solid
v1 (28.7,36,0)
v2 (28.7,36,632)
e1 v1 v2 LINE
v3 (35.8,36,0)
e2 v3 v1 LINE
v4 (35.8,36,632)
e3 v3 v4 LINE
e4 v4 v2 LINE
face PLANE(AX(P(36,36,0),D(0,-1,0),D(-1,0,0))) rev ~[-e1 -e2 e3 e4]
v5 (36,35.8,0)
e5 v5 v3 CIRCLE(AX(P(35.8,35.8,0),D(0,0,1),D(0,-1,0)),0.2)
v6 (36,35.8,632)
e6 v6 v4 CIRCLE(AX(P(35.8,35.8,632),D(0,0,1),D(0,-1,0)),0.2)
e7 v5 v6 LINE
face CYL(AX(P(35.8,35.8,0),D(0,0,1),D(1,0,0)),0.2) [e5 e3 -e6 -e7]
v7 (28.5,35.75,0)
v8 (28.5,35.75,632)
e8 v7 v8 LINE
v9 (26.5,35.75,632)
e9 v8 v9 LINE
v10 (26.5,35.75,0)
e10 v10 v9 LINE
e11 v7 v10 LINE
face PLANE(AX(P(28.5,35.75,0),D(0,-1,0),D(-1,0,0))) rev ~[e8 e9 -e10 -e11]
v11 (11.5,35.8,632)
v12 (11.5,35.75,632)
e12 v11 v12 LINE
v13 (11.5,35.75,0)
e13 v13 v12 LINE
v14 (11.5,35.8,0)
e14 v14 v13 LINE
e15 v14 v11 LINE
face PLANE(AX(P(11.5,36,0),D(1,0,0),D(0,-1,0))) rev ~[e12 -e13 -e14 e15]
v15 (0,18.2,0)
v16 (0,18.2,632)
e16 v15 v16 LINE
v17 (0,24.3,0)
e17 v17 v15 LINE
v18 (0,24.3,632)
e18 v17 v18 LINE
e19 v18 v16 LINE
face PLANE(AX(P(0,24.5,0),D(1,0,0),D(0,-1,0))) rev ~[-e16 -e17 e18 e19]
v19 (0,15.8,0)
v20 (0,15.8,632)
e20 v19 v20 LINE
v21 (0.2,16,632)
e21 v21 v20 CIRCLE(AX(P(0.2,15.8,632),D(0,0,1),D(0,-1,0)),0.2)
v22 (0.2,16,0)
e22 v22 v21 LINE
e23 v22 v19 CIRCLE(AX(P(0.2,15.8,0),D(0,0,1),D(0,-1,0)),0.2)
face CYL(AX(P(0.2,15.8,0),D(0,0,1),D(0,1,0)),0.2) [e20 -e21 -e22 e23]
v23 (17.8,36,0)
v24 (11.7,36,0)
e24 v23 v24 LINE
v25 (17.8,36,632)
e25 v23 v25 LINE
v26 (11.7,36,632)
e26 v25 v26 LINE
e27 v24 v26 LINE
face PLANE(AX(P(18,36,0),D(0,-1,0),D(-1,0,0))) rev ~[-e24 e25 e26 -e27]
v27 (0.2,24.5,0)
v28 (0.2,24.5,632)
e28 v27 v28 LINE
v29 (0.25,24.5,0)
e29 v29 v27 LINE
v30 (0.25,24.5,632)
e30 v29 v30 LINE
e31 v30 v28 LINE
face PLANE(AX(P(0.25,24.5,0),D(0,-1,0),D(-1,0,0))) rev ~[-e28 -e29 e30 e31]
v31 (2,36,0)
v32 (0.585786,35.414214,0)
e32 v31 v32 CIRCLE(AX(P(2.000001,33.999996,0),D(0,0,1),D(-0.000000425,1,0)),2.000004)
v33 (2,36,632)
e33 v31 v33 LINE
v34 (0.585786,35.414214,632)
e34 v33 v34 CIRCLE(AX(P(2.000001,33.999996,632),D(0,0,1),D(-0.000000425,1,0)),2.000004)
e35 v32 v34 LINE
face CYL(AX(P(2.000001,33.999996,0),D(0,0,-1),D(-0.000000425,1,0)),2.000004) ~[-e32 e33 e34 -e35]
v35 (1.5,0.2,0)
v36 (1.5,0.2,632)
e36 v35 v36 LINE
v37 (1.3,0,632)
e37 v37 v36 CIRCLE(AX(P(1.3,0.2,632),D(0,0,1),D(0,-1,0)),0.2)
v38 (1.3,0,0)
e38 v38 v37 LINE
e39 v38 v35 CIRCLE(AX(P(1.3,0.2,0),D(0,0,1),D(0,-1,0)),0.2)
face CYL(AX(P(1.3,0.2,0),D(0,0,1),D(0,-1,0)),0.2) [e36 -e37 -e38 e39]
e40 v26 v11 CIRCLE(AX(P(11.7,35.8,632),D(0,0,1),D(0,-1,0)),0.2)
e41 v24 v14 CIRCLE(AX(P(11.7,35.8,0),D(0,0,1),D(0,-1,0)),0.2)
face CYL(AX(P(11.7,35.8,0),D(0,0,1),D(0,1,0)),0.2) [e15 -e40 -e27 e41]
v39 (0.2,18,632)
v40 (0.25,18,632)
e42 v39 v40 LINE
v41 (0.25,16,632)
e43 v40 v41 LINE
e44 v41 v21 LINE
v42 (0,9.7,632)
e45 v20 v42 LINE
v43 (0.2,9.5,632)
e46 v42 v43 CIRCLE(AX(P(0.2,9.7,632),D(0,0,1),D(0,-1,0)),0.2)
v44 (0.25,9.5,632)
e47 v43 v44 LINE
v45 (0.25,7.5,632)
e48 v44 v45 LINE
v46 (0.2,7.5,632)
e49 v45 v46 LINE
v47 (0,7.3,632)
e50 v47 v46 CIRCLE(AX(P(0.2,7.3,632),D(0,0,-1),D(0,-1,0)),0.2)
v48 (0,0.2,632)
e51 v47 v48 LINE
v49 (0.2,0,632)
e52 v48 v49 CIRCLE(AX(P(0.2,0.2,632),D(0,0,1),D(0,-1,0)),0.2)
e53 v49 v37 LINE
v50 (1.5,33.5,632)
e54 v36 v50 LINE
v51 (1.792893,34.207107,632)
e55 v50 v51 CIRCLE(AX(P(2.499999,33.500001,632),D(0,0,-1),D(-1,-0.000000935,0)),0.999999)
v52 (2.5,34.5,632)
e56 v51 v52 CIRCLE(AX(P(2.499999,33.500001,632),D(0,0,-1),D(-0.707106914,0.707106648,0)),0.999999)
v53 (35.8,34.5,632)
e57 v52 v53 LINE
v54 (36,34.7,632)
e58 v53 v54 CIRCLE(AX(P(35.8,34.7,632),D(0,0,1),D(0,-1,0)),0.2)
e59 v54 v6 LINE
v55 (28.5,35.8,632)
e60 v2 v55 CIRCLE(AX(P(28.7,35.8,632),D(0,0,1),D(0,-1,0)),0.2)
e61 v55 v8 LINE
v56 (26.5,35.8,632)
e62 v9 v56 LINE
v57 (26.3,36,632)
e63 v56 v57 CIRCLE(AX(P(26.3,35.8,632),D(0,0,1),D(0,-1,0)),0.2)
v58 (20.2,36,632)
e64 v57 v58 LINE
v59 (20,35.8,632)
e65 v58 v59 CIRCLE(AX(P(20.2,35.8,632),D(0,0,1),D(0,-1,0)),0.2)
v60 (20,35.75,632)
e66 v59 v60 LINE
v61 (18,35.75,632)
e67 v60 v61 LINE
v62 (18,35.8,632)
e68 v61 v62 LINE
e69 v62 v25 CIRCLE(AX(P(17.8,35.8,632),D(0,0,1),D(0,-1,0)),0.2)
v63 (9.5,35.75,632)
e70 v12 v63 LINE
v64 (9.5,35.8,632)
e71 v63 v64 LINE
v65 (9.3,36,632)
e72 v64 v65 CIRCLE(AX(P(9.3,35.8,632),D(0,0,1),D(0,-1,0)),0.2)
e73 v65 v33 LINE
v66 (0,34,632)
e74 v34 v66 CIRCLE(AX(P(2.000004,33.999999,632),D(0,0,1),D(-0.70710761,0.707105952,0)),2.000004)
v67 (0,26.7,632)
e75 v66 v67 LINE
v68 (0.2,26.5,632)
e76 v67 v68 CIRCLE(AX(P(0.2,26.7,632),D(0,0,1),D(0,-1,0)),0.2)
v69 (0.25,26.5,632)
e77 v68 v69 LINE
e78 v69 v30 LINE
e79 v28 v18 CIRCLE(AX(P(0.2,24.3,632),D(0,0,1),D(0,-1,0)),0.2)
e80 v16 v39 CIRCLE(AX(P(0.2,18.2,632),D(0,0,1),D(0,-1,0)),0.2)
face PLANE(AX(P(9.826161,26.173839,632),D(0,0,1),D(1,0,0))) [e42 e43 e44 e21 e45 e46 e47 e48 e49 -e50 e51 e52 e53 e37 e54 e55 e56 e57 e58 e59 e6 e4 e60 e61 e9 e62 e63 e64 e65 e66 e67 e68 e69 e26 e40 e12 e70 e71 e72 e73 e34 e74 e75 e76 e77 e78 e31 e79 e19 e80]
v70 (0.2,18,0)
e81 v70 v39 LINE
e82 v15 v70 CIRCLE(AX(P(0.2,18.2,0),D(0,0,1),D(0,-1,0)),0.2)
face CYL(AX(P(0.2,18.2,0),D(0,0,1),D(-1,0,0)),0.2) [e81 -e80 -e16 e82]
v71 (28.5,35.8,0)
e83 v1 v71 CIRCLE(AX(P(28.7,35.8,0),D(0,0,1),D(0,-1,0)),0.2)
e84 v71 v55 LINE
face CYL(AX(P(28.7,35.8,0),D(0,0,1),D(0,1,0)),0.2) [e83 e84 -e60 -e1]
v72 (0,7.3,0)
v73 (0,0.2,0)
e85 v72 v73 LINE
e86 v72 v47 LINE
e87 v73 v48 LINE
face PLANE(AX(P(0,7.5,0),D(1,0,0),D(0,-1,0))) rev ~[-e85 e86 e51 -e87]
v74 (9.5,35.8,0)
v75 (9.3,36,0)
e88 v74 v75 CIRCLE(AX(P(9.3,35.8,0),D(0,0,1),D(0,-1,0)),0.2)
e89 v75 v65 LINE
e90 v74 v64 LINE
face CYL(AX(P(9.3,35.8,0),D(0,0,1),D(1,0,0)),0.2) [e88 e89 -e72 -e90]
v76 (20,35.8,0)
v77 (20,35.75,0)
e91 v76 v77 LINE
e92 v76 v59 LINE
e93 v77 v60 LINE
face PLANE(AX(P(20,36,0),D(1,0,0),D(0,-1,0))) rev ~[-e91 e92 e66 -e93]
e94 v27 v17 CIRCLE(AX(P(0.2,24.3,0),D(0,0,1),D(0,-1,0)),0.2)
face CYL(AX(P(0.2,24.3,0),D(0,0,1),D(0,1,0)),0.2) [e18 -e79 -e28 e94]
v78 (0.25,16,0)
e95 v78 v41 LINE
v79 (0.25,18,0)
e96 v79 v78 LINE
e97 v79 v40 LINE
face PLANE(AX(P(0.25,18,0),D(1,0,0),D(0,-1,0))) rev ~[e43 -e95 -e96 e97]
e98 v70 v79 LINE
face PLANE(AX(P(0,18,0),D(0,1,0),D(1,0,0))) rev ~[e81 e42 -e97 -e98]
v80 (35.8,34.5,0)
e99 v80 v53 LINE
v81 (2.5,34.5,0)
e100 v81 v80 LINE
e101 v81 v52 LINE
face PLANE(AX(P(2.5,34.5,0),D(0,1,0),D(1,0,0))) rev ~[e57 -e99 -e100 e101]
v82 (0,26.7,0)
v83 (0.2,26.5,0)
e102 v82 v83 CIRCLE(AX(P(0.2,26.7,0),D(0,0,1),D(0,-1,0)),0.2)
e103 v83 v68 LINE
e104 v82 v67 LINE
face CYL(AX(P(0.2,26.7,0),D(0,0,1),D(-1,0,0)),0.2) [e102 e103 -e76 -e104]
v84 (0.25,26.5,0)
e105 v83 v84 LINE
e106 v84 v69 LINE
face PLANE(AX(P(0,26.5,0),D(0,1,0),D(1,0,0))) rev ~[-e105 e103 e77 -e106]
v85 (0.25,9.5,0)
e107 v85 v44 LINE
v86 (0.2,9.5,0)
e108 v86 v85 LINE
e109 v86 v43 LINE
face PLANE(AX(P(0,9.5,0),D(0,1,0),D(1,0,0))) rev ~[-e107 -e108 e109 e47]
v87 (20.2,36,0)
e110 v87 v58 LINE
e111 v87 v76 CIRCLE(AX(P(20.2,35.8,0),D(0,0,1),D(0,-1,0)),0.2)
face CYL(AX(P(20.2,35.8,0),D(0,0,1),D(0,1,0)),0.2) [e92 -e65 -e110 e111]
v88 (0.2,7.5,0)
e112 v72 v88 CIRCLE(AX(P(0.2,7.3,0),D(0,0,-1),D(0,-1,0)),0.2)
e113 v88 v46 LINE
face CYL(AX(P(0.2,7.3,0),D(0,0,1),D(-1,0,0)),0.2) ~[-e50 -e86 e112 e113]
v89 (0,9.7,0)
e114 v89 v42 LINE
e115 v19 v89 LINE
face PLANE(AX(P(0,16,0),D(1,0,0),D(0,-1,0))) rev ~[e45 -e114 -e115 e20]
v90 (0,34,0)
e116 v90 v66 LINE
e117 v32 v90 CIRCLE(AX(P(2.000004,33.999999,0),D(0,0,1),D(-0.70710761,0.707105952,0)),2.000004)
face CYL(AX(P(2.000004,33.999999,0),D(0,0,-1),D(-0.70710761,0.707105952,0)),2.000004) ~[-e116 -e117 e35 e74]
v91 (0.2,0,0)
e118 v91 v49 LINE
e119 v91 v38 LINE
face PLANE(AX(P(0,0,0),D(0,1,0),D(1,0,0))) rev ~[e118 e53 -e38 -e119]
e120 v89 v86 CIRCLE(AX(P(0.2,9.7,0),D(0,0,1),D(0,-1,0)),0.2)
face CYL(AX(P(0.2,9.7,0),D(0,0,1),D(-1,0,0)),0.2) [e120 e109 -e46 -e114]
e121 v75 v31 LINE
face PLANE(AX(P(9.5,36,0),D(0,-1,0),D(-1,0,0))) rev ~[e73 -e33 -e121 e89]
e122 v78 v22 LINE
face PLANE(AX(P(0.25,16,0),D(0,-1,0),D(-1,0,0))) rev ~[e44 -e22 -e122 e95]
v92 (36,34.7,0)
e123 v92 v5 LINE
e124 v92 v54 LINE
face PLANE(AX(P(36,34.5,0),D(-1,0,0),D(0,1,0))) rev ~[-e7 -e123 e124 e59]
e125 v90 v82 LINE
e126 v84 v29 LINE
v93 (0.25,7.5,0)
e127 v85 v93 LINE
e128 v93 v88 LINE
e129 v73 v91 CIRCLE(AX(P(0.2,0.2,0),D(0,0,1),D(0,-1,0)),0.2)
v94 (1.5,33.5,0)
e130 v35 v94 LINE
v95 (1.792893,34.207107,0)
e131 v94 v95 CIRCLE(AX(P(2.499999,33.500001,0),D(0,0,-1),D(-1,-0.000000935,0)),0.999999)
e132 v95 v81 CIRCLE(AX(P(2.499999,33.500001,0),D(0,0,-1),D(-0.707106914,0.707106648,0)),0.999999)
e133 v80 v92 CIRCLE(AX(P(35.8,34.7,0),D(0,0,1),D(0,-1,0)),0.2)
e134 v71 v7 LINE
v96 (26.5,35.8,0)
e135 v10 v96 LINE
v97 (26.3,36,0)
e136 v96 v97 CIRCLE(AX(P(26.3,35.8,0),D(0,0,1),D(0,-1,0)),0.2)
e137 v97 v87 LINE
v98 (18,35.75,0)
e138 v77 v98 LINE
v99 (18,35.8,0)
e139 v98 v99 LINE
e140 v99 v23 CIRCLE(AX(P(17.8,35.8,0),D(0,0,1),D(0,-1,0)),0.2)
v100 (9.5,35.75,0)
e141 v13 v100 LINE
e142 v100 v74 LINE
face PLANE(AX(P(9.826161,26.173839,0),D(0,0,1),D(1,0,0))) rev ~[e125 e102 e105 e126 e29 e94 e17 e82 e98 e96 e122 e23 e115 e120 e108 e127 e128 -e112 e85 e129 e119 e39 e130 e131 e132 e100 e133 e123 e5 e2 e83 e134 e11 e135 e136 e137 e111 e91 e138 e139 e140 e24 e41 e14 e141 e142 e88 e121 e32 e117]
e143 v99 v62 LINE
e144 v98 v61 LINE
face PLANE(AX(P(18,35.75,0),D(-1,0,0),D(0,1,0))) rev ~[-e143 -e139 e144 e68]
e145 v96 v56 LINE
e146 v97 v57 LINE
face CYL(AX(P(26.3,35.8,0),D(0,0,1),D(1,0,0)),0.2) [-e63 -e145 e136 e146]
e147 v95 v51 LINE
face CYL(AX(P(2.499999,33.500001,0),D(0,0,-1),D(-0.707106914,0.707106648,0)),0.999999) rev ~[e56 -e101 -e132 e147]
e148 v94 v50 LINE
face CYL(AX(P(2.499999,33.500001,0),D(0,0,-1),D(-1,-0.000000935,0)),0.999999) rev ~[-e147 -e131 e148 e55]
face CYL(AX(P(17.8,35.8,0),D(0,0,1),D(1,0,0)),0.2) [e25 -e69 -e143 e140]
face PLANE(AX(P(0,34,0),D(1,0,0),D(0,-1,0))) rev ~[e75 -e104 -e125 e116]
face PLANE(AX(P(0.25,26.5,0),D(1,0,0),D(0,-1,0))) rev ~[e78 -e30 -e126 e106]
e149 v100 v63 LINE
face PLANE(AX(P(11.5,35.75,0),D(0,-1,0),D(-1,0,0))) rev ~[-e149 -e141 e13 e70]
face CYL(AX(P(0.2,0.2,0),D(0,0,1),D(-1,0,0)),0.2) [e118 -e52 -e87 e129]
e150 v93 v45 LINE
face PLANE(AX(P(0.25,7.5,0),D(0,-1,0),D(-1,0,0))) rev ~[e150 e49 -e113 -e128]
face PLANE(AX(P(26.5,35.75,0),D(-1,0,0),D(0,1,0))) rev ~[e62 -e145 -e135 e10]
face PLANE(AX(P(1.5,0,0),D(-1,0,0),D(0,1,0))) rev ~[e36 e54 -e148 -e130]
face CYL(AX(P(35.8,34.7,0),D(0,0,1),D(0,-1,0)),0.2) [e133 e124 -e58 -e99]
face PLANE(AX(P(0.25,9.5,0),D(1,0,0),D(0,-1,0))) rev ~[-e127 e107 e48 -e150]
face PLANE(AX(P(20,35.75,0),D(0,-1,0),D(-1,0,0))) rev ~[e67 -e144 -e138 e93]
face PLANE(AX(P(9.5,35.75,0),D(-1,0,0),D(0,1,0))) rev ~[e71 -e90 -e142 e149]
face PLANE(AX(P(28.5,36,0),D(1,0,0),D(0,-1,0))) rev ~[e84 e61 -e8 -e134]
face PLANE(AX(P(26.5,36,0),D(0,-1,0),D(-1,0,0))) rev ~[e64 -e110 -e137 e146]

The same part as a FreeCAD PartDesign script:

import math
import FreeCAD as App
import Part
import Sketcher

V = App.Vector


def edges_at(feature, points):
    """Names of the edges that pass closest to the given points."""
    edges = feature.Shape.Edges
    near = lambda p: min(range(len(edges)), key=lambda i: edges[i].distToShape(Part.Vertex(*p))[0])
    return sorted({f"Edge{near(p) + 1}" for p in points})

doc = App.newDocument("Part")
body = doc.addObject("PartDesign::Body", "Body")

sketch1 = body.newObject("Sketcher::SketchObject", "Sketch")
sketch1.AttachmentSupport = (doc.getObject("XY_Plane"), [""])
sketch1.MapMode = "FlatFace"
sketch1.addGeometry([
    Part.LineSegment(V(0, 7.5, 0), V(0, 0, 0)),
    Part.LineSegment(V(0, 0, 0), V(1.5, 0, 0)),
    Part.LineSegment(V(1.5, 0, 0), V(1.5, 33.5, 0)),
    Part.ArcOfCircle(Part.Circle(V(2.5, 33.5, 0), V(0, 0, 1), 1), math.radians(135), math.radians(180)),
    Part.ArcOfCircle(Part.Circle(V(2.5, 33.5, 0), V(0, 0, 1), 1), math.radians(90), math.radians(135)),
    Part.LineSegment(V(2.5, 34.5, 0), V(36, 34.5, 0)),
    Part.LineSegment(V(36, 34.5, 0), V(36, 36, 0)),
    Part.LineSegment(V(36, 36, 0), V(28.5, 36, 0)),
    Part.LineSegment(V(28.5, 36, 0), V(28.5, 35.75, 0)),
    Part.LineSegment(V(28.5, 35.75, 0), V(26.5, 35.75, 0)),
    Part.LineSegment(V(26.5, 35.75, 0), V(26.5, 36, 0)),
    Part.LineSegment(V(26.5, 36, 0), V(20, 36, 0)),
    Part.LineSegment(V(20, 36, 0), V(20, 35.75, 0)),
    Part.LineSegment(V(20, 35.75, 0), V(18, 35.75, 0)),
    Part.LineSegment(V(18, 35.75, 0), V(18, 36, 0)),
    Part.LineSegment(V(18, 36, 0), V(11.5, 36, 0)),
    Part.LineSegment(V(11.5, 36, 0), V(11.5, 35.75, 0)),
    Part.LineSegment(V(11.5, 35.75, 0), V(9.5, 35.75, 0)),
    Part.LineSegment(V(9.5, 35.75, 0), V(9.5, 36, 0)),
    Part.LineSegment(V(9.5, 36, 0), V(2, 36, 0)),
    Part.ArcOfCircle(Part.Circle(V(2, 34, 0), V(0, 0, 1), 2), math.radians(90), math.radians(135)),
    Part.ArcOfCircle(Part.Circle(V(2, 34, 0), V(0, 0, 1), 2), math.radians(135), math.radians(180)),
    Part.LineSegment(V(0, 34, 0), V(0, 26.5, 0)),
    Part.LineSegment(V(0, 26.5, 0), V(0.25, 26.5, 0)),
    Part.LineSegment(V(0.25, 26.5, 0), V(0.25, 24.5, 0)),
    Part.LineSegment(V(0.25, 24.5, 0), V(0, 24.5, 0)),
    Part.LineSegment(V(0, 24.5, 0), V(0, 18, 0)),
    Part.LineSegment(V(0, 18, 0), V(0.25, 18, 0)),
    Part.LineSegment(V(0.25, 18, 0), V(0.25, 16, 0)),
    Part.LineSegment(V(0.25, 16, 0), V(0, 16, 0)),
    Part.LineSegment(V(0, 16, 0), V(0, 9.5, 0)),
    Part.LineSegment(V(0, 9.5, 0), V(0.25, 9.5, 0)),
    Part.LineSegment(V(0.25, 9.5, 0), V(0.25, 7.5, 0)),
    Part.LineSegment(V(0.25, 7.5, 0), V(0, 7.5, 0)),
], False)
sketch1.addConstraint([
    Sketcher.Constraint("Coincident", 0, 2, 1, 1),
    Sketcher.Constraint("Coincident", 1, 2, 2, 1),
    Sketcher.Constraint("Tangent", 2, 2, 3, 2),
    Sketcher.Constraint("Tangent", 3, 1, 4, 2),
    Sketcher.Constraint("Tangent", 4, 1, 5, 1),
    Sketcher.Constraint("Coincident", 5, 2, 6, 1),
    Sketcher.Constraint("Coincident", 6, 2, 7, 1),
    Sketcher.Constraint("Coincident", 7, 2, 8, 1),
    Sketcher.Constraint("Coincident", 8, 2, 9, 1),
    Sketcher.Constraint("Coincident", 9, 2, 10, 1),
    Sketcher.Constraint("Coincident", 10, 2, 11, 1),
    Sketcher.Constraint("Coincident", 11, 2, 12, 1),
    Sketcher.Constraint("Coincident", 12, 2, 13, 1),
    Sketcher.Constraint("Coincident", 13, 2, 14, 1),
    Sketcher.Constraint("Coincident", 14, 2, 15, 1),
    Sketcher.Constraint("Coincident", 15, 2, 16, 1),
    Sketcher.Constraint("Coincident", 16, 2, 17, 1),
    Sketcher.Constraint("Coincident", 17, 2, 18, 1),
    Sketcher.Constraint("Coincident", 18, 2, 19, 1),
    Sketcher.Constraint("Tangent", 19, 2, 20, 1),
    Sketcher.Constraint("Coincident", 20, 2, 21, 1),
    Sketcher.Constraint("Tangent", 21, 2, 22, 1),
    Sketcher.Constraint("Coincident", 22, 2, 23, 1),
    Sketcher.Constraint("Coincident", 23, 2, 24, 1),
    Sketcher.Constraint("Coincident", 24, 2, 25, 1),
    Sketcher.Constraint("Coincident", 25, 2, 26, 1),
    Sketcher.Constraint("Coincident", 26, 2, 27, 1),
    Sketcher.Constraint("Coincident", 27, 2, 28, 1),
    Sketcher.Constraint("Coincident", 28, 2, 29, 1),
    Sketcher.Constraint("Coincident", 29, 2, 30, 1),
    Sketcher.Constraint("Coincident", 30, 2, 31, 1),
    Sketcher.Constraint("Coincident", 31, 2, 32, 1),
    Sketcher.Constraint("Coincident", 32, 2, 33, 1),
    Sketcher.Constraint("Coincident", 33, 2, 0, 1),
    Sketcher.Constraint("Vertical", 0),
    Sketcher.Constraint("Horizontal", 1),
    Sketcher.Constraint("Vertical", 2),
    Sketcher.Constraint("Horizontal", 5),
    Sketcher.Constraint("Vertical", 6),
    Sketcher.Constraint("Horizontal", 7),
    Sketcher.Constraint("Vertical", 8),
    Sketcher.Constraint("Horizontal", 9),
    Sketcher.Constraint("Vertical", 10),
    Sketcher.Constraint("Horizontal", 11),
    Sketcher.Constraint("Vertical", 12),
    Sketcher.Constraint("Horizontal", 13),
    Sketcher.Constraint("Vertical", 14),
    Sketcher.Constraint("Horizontal", 15),
    Sketcher.Constraint("Vertical", 16),
    Sketcher.Constraint("Horizontal", 17),
    Sketcher.Constraint("Vertical", 18),
    Sketcher.Constraint("Horizontal", 19),
    Sketcher.Constraint("Vertical", 22),
    Sketcher.Constraint("Horizontal", 23),
    Sketcher.Constraint("Vertical", 24),
    Sketcher.Constraint("Horizontal", 25),
    Sketcher.Constraint("Vertical", 26),
    Sketcher.Constraint("Horizontal", 27),
    Sketcher.Constraint("Vertical", 28),
    Sketcher.Constraint("Horizontal", 29),
    Sketcher.Constraint("Vertical", 30),
    Sketcher.Constraint("Horizontal", 31),
    Sketcher.Constraint("Vertical", 32),
    Sketcher.Constraint("Horizontal", 33),
    Sketcher.Constraint("Coincident", 0, 2, -1, 1),
    Sketcher.Constraint("Coincident", 21, 3, 20, 3),
    Sketcher.Constraint("Equal", 3, 4),
    Sketcher.Constraint("PointOnObject", 21, 2, -2),
    Sketcher.Constraint("PointOnObject", 25, 2, -2),
    Sketcher.Constraint("PointOnObject", 29, 2, -2),
    Sketcher.Constraint("Horizontal", 7, 2, 10, 2),
    Sketcher.Constraint("Horizontal", 9, 2, 12, 2),
    Sketcher.Constraint("Horizontal", 11, 2, 14, 2),
    Sketcher.Constraint("Horizontal", 13, 2, 16, 2),
    Sketcher.Constraint("Horizontal", 15, 2, 18, 2),
    Sketcher.Constraint("Vertical", 24, 2, 27, 2),
    Sketcher.Constraint("Vertical", 28, 2, 31, 2),
    Sketcher.Constraint("Equal", 9, 13),
    Sketcher.Constraint("Equal", 11, 15),
    Sketcher.Constraint("Equal", 13, 17),
    Sketcher.Constraint("Equal", 7, 19),
    Sketcher.Constraint("Equal", 19, 0),
    Sketcher.Constraint("Equal", 5, 2),
    Sketcher.Constraint("Equal", 1, 6),
    Sketcher.Constraint("Equal", 33, 8),
    Sketcher.Constraint("Equal", 0, 22),
    Sketcher.Constraint("Equal", 17, 24),
    Sketcher.Constraint("Equal", 15, 26),
    Sketcher.Constraint("Equal", 24, 28),
    Sketcher.Constraint("Equal", 26, 30),
    Sketcher.Constraint("Radius", 3, 0.999999),
    Sketcher.Constraint("DistanceX", 9, 2, 9, 1, 2.0),
    Sketcher.Constraint("DistanceX", 1, 1, 1, 2, 1.5),
    Sketcher.Constraint("DistanceX", 5, 1, 5, 2, 33.5),
    Sketcher.Constraint("DistanceX", 7, 2, 7, 1, 7.5),
    Sketcher.Constraint("DistanceX", 11, 2, 11, 1, 6.5),
    Sketcher.Constraint("DistanceX", 23, 1, 23, 2, 0.25),
    Sketcher.Constraint("DistanceY", 20, 3, 3, 1, 0.207111),
    Sketcher.Constraint("DistanceY", 20, 3, 20, 2, 1.414218),
])
pad1 = body.newObject("PartDesign::Pad", "Pad")
pad1.Profile = sketch1
pad1.Length = 632
doc.recompute()

fillet = body.newObject("PartDesign::Fillet", "Fillet")
fillet.Base = (pad1, edges_at(pad1, [
    (0, 16, 316),
    (0, 18, 316),
    (0, 9.5, 316),
    (0, 7.5, 316),
    (0, 26.5, 316),
    (0, 24.5, 316),
    (9.5, 36, 316),
    (11.5, 36, 316),
    (18, 36, 316),
    (20, 36, 316),
    (26.5, 36, 316),
    (28.5, 36, 316),
    (36, 36, 316),
    (36, 34.5, 316),
    (0, 0, 316),
    (1.5, 0, 316),
]))
fillet.Radius = 0.2

doc.recompute()
